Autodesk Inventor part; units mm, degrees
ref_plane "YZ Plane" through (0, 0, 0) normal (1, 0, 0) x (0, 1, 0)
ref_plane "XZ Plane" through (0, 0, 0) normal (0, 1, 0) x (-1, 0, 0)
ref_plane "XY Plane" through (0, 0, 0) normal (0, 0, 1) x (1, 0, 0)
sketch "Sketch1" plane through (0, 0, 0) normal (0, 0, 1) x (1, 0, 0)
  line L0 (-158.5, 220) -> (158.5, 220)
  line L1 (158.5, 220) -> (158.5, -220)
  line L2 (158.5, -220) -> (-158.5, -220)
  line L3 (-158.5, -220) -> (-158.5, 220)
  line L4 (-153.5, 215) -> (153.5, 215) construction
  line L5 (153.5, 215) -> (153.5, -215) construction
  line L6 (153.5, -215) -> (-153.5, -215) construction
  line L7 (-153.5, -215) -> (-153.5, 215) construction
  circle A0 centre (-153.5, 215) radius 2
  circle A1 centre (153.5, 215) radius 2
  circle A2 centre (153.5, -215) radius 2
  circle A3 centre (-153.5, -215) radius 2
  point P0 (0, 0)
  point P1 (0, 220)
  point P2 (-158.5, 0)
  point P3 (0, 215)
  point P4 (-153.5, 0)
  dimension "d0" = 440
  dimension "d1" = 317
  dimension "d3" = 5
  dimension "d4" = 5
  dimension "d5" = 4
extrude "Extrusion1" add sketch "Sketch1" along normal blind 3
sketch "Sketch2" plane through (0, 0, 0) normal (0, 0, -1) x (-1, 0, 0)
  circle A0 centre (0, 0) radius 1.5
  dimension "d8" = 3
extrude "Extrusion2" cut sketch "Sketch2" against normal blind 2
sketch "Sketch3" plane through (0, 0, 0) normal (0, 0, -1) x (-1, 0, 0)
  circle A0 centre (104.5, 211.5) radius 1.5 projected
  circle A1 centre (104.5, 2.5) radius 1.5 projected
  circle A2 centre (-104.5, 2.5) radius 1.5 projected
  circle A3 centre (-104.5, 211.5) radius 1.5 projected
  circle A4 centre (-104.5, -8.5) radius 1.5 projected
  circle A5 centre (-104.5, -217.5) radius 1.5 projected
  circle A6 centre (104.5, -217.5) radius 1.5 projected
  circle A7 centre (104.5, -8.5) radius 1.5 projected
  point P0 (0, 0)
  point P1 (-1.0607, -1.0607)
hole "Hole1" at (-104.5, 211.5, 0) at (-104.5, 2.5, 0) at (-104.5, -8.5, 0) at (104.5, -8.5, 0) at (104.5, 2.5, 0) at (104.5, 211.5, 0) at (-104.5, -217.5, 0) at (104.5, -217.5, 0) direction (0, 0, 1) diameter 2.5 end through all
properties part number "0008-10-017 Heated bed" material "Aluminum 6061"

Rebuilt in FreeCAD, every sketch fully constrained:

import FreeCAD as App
import Part
import Sketcher

doc = App.newDocument("Part")
body = doc.addObject("PartDesign::Body", "Body")

sketch1 = doc.addObject("Sketcher::SketchObject", "Sketch")
body.addObject(sketch1)
sketch1.AttachmentSupport = (doc.XY_Plane, [""])
sketch1.MapMode = "FlatFace"
sketch1.addGeometry(Part.LineSegment(App.Vector(158.5, 220, 0), App.Vector(-158.5, 220, 0)), False)
sketch1.addGeometry(Part.LineSegment(App.Vector(-158.5, 220, 0), App.Vector(-158.5, -220, 0)), False)
sketch1.addGeometry(Part.LineSegment(App.Vector(-158.5, -220, 0), App.Vector(158.5, -220, 0)), False)
sketch1.addGeometry(Part.LineSegment(App.Vector(158.5, -220, 0), App.Vector(158.5, 220, 0)), False)
sketch1.addGeometry(Part.Circle(App.Vector(-153.5, -215, 0), App.Vector(0, 0, 1), 2), False)
sketch1.addGeometry(Part.Circle(App.Vector(153.5, -215, 0), App.Vector(0, 0, 1), 2), False)
sketch1.addGeometry(Part.Circle(App.Vector(-153.5, 215, 0), App.Vector(0, 0, 1), 2), False)
sketch1.addGeometry(Part.Circle(App.Vector(153.5, 215, 0), App.Vector(0, 0, 1), 2), False)
sketch1.addConstraint(Sketcher.Constraint("Coincident", 0, 2, 1, 1))
sketch1.addConstraint(Sketcher.Constraint("Coincident", 1, 2, 2, 1))
sketch1.addConstraint(Sketcher.Constraint("Coincident", 2, 2, 3, 1))
sketch1.addConstraint(Sketcher.Constraint("Coincident", 3, 2, 0, 1))
sketch1.addConstraint(Sketcher.Constraint("Horizontal", 0))
sketch1.addConstraint(Sketcher.Constraint("Vertical", 1))
sketch1.addConstraint(Sketcher.Constraint("Horizontal", 2))
sketch1.addConstraint(Sketcher.Constraint("Vertical", 3))
sketch1.addConstraint(Sketcher.Constraint("Equal", 4, 5))
sketch1.addConstraint(Sketcher.Constraint("Equal", 5, 6))
sketch1.addConstraint(Sketcher.Constraint("Equal", 6, 7))
sketch1.addConstraint(Sketcher.Constraint("Symmetric", 5, 3, 6, 3, -1, 1))
sketch1.addConstraint(Sketcher.Constraint("Symmetric", 4, 3, 7, 3, -1, 1))
sketch1.addConstraint(Sketcher.Constraint("Symmetric", 0, 2, 2, 2, -1, 1))
sketch1.addConstraint(Sketcher.Constraint("Symmetric", 4, 3, 5, 3, -2))
sketch1.addConstraint(Sketcher.Constraint("Diameter", 4, 4.0))
sketch1.addConstraint(Sketcher.Constraint("DistanceX", 0, 2, 0, 1, 317.0))
sketch1.addConstraint(Sketcher.Constraint("DistanceY", 1, 2, 1, 1, 440.0))
sketch1.addConstraint(Sketcher.Constraint("DistanceX", 0, 2, 6, 3, 5.0))
sketch1.addConstraint(Sketcher.Constraint("DistanceY", 6, 3, 0, 2, 5.0))
pad1 = doc.addObject("PartDesign::Pad", "Pad")
body.addObject(pad1)
pad1.Profile = sketch1
pad1.Length = 3

sketch2 = doc.addObject("Sketcher::SketchObject", "Sketch001")
body.addObject(sketch2)
sketch2.AttachmentSupport = (doc.XY_Plane, [""])
sketch2.MapMode = "FlatFace"
sketch2.addGeometry(Part.Circle(App.Vector(0, 0, 0), App.Vector(0, 0, 1), 1.5), False)
sketch2.addConstraint(Sketcher.Constraint("Coincident", 0, 3, -1, 1))
sketch2.addConstraint(Sketcher.Constraint("Diameter", 0, 3.0))
pocket1 = doc.addObject("PartDesign::Pocket", "Pocket")
body.addObject(pocket1)
pocket1.Profile = sketch2
pocket1.Length = 2
pocket1.Reversed = True

sketch3 = doc.addObject("Sketcher::SketchObject", "Sketch002")
body.addObject(sketch3)
sketch3.AttachmentSupport = (doc.XY_Plane, [""])
sketch3.MapMode = "FlatFace"
sketch3.addGeometry(Part.Circle(App.Vector(-104.5, 211.5, 0), App.Vector(0, 0, 1), 1.2), False)
sketch3.addGeometry(Part.Circle(App.Vector(-104.5, 2.5, 0), App.Vector(0, 0, 1), 1.2), False)
sketch3.addGeometry(Part.Circle(App.Vector(-104.5, -8.5, 0), App.Vector(0, 0, 1), 1.2), False)
sketch3.addGeometry(Part.Circle(App.Vector(104.5, -8.5, 0), App.Vector(0, 0, 1), 1.2), False)
sketch3.addGeometry(Part.Circle(App.Vector(104.5, 2.5, 0), App.Vector(0, 0, 1), 1.2), False)
sketch3.addGeometry(Part.Circle(App.Vector(104.5, 211.5, 0), App.Vector(0, 0, 1), 1.2), False)
sketch3.addGeometry(Part.Circle(App.Vector(-104.5, -217.5, 0), App.Vector(0, 0, 1), 1.2), False)
sketch3.addGeometry(Part.Circle(App.Vector(104.5, -217.5, 0), App.Vector(0, 0, 1), 1.2), False)
sketch3.addConstraint(Sketcher.Constraint("Equal", 0, 1))
sketch3.addConstraint(Sketcher.Constraint("Equal", 1, 2))
sketch3.addConstraint(Sketcher.Constraint("Equal", 2, 3))
sketch3.addConstraint(Sketcher.Constraint("Equal", 3, 4))
sketch3.addConstraint(Sketcher.Constraint("Equal", 4, 5))
sketch3.addConstraint(Sketcher.Constraint("Equal", 5, 6))
sketch3.addConstraint(Sketcher.Constraint("Equal", 6, 7))
sketch3.addConstraint(Sketcher.Constraint("Symmetric", 2, 3, 3, 3, -2))
sketch3.addConstraint(Sketcher.Constraint("Symmetric", 1, 3, 4, 3, -2))
sketch3.addConstraint(Sketcher.Constraint("Symmetric", 0, 3, 5, 3, -2))
sketch3.addConstraint(Sketcher.Constraint("Symmetric", 6, 3, 7, 3, -2))
sketch3.addConstraint(Sketcher.Constraint("Vertical", 0, 3, 1, 3))
sketch3.addConstraint(Sketcher.Constraint("Vertical", 1, 3, 2, 3))
sketch3.addConstraint(Sketcher.Constraint("Vertical", 2, 3, 6, 3))
sketch3.addConstraint(Sketcher.Constraint("Diameter", 0, 2.5))
sketch3.addConstraint(Sketcher.Constraint("DistanceY", 1, 3, 0, 3, 209.0))
sketch3.addConstraint(Sketcher.Constraint("DistanceY", 2, 3, 1, 3, 11.0))
sketch3.addConstraint(Sketcher.Constraint("DistanceX", 2, 3, 3, 3, 209.0))
sketch3.addConstraint(Sketcher.Constraint("DistanceY", 6, 3, 2, 3, 209.0))
sketch3.addConstraint(Sketcher.Constraint("DistanceY", -1, 1, 0, 3, 211.5))
doc.recompute()
hole = doc.addObject("PartDesign::Hole", "Hole")
body.addObject(hole)
hole.Profile = sketch3
hole.ThreadType = "None"
hole.Diameter = 2.5
hole.DepthType = "ThroughAll"
hole.Reversed = True

doc.recompute()
